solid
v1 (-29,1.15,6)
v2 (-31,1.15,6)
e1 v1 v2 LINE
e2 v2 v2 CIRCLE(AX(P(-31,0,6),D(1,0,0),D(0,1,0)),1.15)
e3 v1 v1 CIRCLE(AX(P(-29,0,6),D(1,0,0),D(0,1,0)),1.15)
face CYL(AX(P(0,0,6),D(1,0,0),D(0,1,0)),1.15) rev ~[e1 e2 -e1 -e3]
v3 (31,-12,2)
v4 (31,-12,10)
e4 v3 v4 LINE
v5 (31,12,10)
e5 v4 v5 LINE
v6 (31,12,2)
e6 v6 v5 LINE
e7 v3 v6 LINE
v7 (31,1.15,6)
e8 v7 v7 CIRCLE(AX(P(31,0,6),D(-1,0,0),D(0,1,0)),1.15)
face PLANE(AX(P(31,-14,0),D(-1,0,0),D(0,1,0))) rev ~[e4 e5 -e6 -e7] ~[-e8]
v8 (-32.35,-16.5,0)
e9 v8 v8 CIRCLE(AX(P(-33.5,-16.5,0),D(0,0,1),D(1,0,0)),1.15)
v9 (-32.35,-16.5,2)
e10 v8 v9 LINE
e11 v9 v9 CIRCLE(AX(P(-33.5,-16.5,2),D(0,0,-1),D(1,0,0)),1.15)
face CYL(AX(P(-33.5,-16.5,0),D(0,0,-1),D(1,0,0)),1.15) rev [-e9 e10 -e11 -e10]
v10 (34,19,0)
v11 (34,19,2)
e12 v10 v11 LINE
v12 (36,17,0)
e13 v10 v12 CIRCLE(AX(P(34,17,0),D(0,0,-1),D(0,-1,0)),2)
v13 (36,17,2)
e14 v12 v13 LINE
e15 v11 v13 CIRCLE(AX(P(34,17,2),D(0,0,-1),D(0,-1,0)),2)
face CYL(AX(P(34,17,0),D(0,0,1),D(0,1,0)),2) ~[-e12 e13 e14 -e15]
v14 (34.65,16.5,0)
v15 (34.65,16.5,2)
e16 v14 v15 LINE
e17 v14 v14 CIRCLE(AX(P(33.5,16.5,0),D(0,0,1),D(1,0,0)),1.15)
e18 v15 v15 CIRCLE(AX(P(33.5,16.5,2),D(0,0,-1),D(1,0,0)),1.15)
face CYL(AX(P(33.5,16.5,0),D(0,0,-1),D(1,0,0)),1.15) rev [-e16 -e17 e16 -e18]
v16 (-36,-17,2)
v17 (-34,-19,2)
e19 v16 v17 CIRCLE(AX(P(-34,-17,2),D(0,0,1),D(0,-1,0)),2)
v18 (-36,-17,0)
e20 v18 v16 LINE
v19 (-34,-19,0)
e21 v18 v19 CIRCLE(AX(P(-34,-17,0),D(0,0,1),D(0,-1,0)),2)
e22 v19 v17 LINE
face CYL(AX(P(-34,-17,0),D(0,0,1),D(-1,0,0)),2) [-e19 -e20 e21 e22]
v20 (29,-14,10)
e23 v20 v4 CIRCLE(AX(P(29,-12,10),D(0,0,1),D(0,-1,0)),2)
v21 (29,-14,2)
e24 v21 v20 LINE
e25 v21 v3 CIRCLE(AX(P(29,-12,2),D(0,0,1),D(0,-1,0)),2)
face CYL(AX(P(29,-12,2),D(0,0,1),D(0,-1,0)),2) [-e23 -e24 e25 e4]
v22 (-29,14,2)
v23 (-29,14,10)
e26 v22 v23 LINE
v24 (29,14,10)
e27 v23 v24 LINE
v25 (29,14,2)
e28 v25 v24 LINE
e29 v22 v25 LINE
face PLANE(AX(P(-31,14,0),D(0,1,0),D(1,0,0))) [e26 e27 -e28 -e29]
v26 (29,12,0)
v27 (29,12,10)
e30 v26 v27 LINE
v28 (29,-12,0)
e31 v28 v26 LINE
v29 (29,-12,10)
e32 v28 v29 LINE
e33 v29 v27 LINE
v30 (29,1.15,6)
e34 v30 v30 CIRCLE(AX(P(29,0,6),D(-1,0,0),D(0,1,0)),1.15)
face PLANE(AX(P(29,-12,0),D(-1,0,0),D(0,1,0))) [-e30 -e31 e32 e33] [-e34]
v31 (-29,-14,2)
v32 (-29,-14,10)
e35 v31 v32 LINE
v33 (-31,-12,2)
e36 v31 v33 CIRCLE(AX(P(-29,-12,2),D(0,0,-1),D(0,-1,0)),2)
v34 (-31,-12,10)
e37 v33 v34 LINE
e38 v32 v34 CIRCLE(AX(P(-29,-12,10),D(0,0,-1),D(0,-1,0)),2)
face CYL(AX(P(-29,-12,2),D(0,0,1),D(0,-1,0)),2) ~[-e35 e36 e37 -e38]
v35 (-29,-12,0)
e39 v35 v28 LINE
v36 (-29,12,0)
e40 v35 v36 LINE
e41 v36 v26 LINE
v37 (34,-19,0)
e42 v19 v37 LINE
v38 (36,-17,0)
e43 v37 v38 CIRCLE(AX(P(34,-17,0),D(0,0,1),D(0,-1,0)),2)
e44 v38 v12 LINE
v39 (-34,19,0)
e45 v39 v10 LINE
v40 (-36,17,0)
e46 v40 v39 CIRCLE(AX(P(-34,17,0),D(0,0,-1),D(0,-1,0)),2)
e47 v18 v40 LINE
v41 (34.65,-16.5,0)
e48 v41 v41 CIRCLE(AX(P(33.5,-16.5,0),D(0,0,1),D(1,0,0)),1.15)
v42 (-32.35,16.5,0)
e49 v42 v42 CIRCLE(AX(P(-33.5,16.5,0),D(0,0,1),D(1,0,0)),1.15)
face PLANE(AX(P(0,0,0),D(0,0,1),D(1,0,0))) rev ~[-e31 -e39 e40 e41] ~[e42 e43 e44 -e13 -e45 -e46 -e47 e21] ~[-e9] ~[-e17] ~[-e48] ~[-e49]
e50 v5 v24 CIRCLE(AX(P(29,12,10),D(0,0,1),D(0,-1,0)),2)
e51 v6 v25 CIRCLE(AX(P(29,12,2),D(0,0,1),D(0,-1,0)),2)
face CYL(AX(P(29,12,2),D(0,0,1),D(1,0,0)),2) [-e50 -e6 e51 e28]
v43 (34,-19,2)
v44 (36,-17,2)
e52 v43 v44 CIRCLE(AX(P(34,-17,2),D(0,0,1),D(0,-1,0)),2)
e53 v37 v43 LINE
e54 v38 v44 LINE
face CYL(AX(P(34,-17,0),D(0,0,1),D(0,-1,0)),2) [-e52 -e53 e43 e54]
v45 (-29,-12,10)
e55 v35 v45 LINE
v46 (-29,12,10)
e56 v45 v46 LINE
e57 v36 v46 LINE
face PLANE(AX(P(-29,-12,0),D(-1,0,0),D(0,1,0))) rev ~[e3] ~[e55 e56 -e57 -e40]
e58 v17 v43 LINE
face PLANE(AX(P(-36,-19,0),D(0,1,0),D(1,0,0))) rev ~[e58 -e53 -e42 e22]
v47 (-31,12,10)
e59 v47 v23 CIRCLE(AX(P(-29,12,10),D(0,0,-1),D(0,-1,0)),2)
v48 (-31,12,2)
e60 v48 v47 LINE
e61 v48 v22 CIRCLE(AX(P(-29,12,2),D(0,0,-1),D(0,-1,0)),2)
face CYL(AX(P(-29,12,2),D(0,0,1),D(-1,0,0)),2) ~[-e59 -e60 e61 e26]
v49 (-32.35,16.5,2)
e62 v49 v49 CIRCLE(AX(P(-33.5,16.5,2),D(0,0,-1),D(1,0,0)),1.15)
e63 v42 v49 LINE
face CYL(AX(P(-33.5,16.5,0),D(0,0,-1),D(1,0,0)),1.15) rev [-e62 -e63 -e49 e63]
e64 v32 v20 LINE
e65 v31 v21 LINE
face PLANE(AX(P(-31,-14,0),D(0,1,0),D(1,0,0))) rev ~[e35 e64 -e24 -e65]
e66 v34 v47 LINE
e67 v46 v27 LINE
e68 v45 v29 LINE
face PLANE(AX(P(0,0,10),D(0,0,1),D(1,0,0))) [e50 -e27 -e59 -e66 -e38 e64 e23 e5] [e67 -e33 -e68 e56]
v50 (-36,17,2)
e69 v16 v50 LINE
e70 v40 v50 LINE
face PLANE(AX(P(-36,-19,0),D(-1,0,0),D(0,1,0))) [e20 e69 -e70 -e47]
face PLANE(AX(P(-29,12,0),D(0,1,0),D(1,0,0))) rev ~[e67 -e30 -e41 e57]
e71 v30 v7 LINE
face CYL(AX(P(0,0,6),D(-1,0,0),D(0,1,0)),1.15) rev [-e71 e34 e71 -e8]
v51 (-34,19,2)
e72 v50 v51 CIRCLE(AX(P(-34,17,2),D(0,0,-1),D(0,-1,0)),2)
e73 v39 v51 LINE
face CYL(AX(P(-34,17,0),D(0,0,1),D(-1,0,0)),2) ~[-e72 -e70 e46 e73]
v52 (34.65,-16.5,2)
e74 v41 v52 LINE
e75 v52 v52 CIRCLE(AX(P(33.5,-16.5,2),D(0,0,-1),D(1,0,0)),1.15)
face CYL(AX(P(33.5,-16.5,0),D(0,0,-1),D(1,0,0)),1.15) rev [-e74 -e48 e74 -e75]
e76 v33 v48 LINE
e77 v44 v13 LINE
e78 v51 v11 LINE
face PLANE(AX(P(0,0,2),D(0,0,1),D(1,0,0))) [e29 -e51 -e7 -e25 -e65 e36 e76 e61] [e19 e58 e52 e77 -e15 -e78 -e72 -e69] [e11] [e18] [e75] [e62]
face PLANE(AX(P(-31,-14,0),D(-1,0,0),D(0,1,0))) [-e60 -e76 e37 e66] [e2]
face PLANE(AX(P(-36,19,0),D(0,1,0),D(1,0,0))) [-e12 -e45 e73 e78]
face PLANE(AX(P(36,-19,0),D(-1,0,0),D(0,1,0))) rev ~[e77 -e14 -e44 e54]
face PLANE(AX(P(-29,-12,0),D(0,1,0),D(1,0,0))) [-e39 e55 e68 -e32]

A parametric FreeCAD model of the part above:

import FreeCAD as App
import Part
import Sketcher
Q = App.Units.Quantity


def edges_at(feature, points):
    """Names of the edges that pass closest to the given points."""
    edges = feature.Shape.Edges
    near = lambda p: min(range(len(edges)), key=lambda i: edges[i].distToShape(Part.Vertex(*p))[0])
    return sorted({f"Edge{near(p) + 1}" for p in points})

doc = App.newDocument("Part")
body = doc.addObject("PartDesign::Body", "Body")

sketch1 = body.newObject("Sketcher::SketchObject", "Sketch")
sketch1.AttachmentSupport = (doc.getObject("XY_Plane"), [""])
sketch1.MapMode = "FlatFace"
sketch1.addGeometry(Part.LineSegment(App.Vector(-31, 14, 0), App.Vector(-31, -14, 0)), False)
sketch1.addGeometry(Part.LineSegment(App.Vector(-31, -14, 0), App.Vector(31, -14, 0)), False)
sketch1.addGeometry(Part.LineSegment(App.Vector(31, -14, 0), App.Vector(31, 14, 0)), False)
sketch1.addGeometry(Part.LineSegment(App.Vector(31, 14, 0), App.Vector(-31, 14, 0)), False)
sketch1.addGeometry(Part.LineSegment(App.Vector(29, -12, 0), App.Vector(-29, -12, 0)), False)
sketch1.addGeometry(Part.LineSegment(App.Vector(-29, -12, 0), App.Vector(-29, 12, 0)), False)
sketch1.addGeometry(Part.LineSegment(App.Vector(-29, 12, 0), App.Vector(29, 12, 0)), False)
sketch1.addGeometry(Part.LineSegment(App.Vector(29, 12, 0), App.Vector(29, -12, 0)), False)
sketch1.addConstraint(Sketcher.Constraint("Coincident", 0, 2, 1, 1))
sketch1.addConstraint(Sketcher.Constraint("Coincident", 1, 2, 2, 1))
sketch1.addConstraint(Sketcher.Constraint("Coincident", 2, 2, 3, 1))
sketch1.addConstraint(Sketcher.Constraint("Coincident", 3, 2, 0, 1))
sketch1.addConstraint(Sketcher.Constraint("Coincident", 4, 2, 5, 1))
sketch1.addConstraint(Sketcher.Constraint("Coincident", 5, 2, 6, 1))
sketch1.addConstraint(Sketcher.Constraint("Coincident", 6, 2, 7, 1))
sketch1.addConstraint(Sketcher.Constraint("Coincident", 7, 2, 4, 1))
sketch1.addConstraint(Sketcher.Constraint("Vertical", 0))
sketch1.addConstraint(Sketcher.Constraint("Horizontal", 1))
sketch1.addConstraint(Sketcher.Constraint("Vertical", 2))
sketch1.addConstraint(Sketcher.Constraint("Horizontal", 3))
sketch1.addConstraint(Sketcher.Constraint("Horizontal", 4))
sketch1.addConstraint(Sketcher.Constraint("Vertical", 5))
sketch1.addConstraint(Sketcher.Constraint("Horizontal", 6))
sketch1.addConstraint(Sketcher.Constraint("Vertical", 7))
sketch1.addConstraint(Sketcher.Constraint("Symmetric", 0, 2, 2, 2, -1, 1))
sketch1.addConstraint(Sketcher.Constraint("Symmetric", 4, 2, 6, 2, -1, 1))
sketch1.addConstraint(Sketcher.Constraint("DistanceX", 1, 1, 1, 2, Q("62 mm")))
sketch1.addConstraint(Sketcher.Constraint("DistanceX", 4, 2, 4, 1, Q("58 mm")))
sketch1.addConstraint(Sketcher.Constraint("DistanceY", 0, 2, 0, 1, Q("28 mm")))
sketch1.addConstraint(Sketcher.Constraint("DistanceY", 5, 1, 5, 2, Q("24 mm")))
pad1 = body.newObject("PartDesign::Pad", "Pad")
pad1.Profile = sketch1
pad1.Length = 10

sketch2 = body.newObject("Sketcher::SketchObject", "Sketch001")
sketch2.AttachmentSupport = (doc.getObject("XY_Plane"), [""])
sketch2.MapMode = "FlatFace"
sketch2.addGeometry(Part.LineSegment(App.Vector(-36, 19, 0), App.Vector(-36, -19, 0)), False)
sketch2.addGeometry(Part.LineSegment(App.Vector(-36, -19, 0), App.Vector(36, -19, 0)), False)
sketch2.addGeometry(Part.LineSegment(App.Vector(36, -19, 0), App.Vector(36, 19, 0)), False)
sketch2.addGeometry(Part.LineSegment(App.Vector(36, 19, 0), App.Vector(-36, 19, 0)), False)
sketch2.addGeometry(Part.LineSegment(App.Vector(31, -14, 0), App.Vector(-31, -14, 0)), False)
sketch2.addGeometry(Part.LineSegment(App.Vector(-31, -14, 0), App.Vector(-31, 14, 0)), False)
sketch2.addGeometry(Part.LineSegment(App.Vector(-31, 14, 0), App.Vector(31, 14, 0)), False)
sketch2.addGeometry(Part.LineSegment(App.Vector(31, 14, 0), App.Vector(31, -14, 0)), False)
sketch2.addConstraint(Sketcher.Constraint("Coincident", 0, 2, 1, 1))
sketch2.addConstraint(Sketcher.Constraint("Coincident", 1, 2, 2, 1))
sketch2.addConstraint(Sketcher.Constraint("Coincident", 2, 2, 3, 1))
sketch2.addConstraint(Sketcher.Constraint("Coincident", 3, 2, 0, 1))
sketch2.addConstraint(Sketcher.Constraint("Coincident", 4, 2, 5, 1))
sketch2.addConstraint(Sketcher.Constraint("Coincident", 5, 2, 6, 1))
sketch2.addConstraint(Sketcher.Constraint("Coincident", 6, 2, 7, 1))
sketch2.addConstraint(Sketcher.Constraint("Coincident", 7, 2, 4, 1))
sketch2.addConstraint(Sketcher.Constraint("Vertical", 0))
sketch2.addConstraint(Sketcher.Constraint("Horizontal", 1))
sketch2.addConstraint(Sketcher.Constraint("Vertical", 2))
sketch2.addConstraint(Sketcher.Constraint("Horizontal", 3))
sketch2.addConstraint(Sketcher.Constraint("Horizontal", 4))
sketch2.addConstraint(Sketcher.Constraint("Vertical", 5))
sketch2.addConstraint(Sketcher.Constraint("Horizontal", 6))
sketch2.addConstraint(Sketcher.Constraint("Vertical", 7))
sketch2.addConstraint(Sketcher.Constraint("Symmetric", 0, 2, 2, 2, -1, 1))
sketch2.addConstraint(Sketcher.Constraint("Symmetric", 4, 2, 6, 2, -1, 1))
sketch2.addConstraint(Sketcher.Constraint("DistanceX", 1, 1, 1, 2, Q("72 mm")))
sketch2.addConstraint(Sketcher.Constraint("DistanceX", 4, 2, 4, 1, Q("62 mm")))
sketch2.addConstraint(Sketcher.Constraint("DistanceY", 0, 2, 0, 1, Q("38 mm")))
sketch2.addConstraint(Sketcher.Constraint("DistanceY", 5, 1, 5, 2, Q("28 mm")))
pad2 = body.newObject("PartDesign::Pad", "Pad001")
pad2.Profile = sketch2
pad2.Length = 2

sketch3 = body.newObject("Sketcher::SketchObject", "Sketch002")
sketch3.AttachmentSupport = (doc.getObject("XY_Plane"), [""])
sketch3.MapMode = "FlatFace"
sketch3.addGeometry(Part.Circle(App.Vector(-33.5, 16.5, 0), App.Vector(0, 0, 1), 1.15), False)
sketch3.addGeometry(Part.Circle(App.Vector(33.5, 16.5, 0), App.Vector(0, 0, 1), 1.15), False)
sketch3.addGeometry(Part.Circle(App.Vector(33.5, -16.5, 0), App.Vector(0, 0, 1), 1.15), False)
sketch3.addGeometry(Part.Circle(App.Vector(-33.5, -16.5, 0), App.Vector(0, 0, 1), 1.15), False)
sketch3.addConstraint(Sketcher.Constraint("Equal", 0, 1))
sketch3.addConstraint(Sketcher.Constraint("Equal", 1, 2))
sketch3.addConstraint(Sketcher.Constraint("Equal", 2, 3))
sketch3.addConstraint(Sketcher.Constraint("Symmetric", 0, 3, 2, 3, -1, 1))
sketch3.addConstraint(Sketcher.Constraint("Symmetric", 1, 3, 3, 3, -1, 1))
sketch3.addConstraint(Sketcher.Constraint("Symmetric", 0, 3, 1, 3, -2))
sketch3.addConstraint(Sketcher.Constraint("Diameter", 0, Q("2.3 mm")))
sketch3.addConstraint(Sketcher.Constraint("DistanceX", 0, 3, 1, 3, Q("67 mm")))
sketch3.addConstraint(Sketcher.Constraint("DistanceY", 2, 3, 1, 3, Q("33 mm")))
pocket1 = body.newObject("PartDesign::Pocket", "Pocket")
pocket1.Profile = sketch3
pocket1.Type = "ThroughAll"
pocket1.Midplane = True

sketch4 = body.newObject("Sketcher::SketchObject", "Sketch003")
sketch4.AttachmentSupport = (doc.getObject("YZ_Plane"), [""])
sketch4.MapMode = "FlatFace"
sketch4.addGeometry(Part.Circle(App.Vector(0, 6, 0), App.Vector(0, 0, 1), 1.15), False)
sketch4.addConstraint(Sketcher.Constraint("PointOnObject", 0, 3, -2))
sketch4.addConstraint(Sketcher.Constraint("Diameter", 0, Q("2.3 mm")))
sketch4.addConstraint(Sketcher.Constraint("DistanceY", -1, 1, 0, 3, Q("6 mm")))
pocket2 = body.newObject("PartDesign::Pocket", "Pocket001")
pocket2.Profile = sketch4
pocket2.Type = "ThroughAll"
pocket2.Midplane = True
doc.recompute()

fillet = body.newObject("PartDesign::Fillet", "Fillet")
fillet.Base = (pocket2, edges_at(pocket2, [
    (-36, 19, 1),
    (-36, -19, 1),
    (36, -19, 1),
    (36, 19, 1),
    (31, 14, 6),
    (31, -14, 6),
    (-31, 14, 6),
    (-31, -14, 6),
]))
fillet.Radius = 2

doc.recompute()
